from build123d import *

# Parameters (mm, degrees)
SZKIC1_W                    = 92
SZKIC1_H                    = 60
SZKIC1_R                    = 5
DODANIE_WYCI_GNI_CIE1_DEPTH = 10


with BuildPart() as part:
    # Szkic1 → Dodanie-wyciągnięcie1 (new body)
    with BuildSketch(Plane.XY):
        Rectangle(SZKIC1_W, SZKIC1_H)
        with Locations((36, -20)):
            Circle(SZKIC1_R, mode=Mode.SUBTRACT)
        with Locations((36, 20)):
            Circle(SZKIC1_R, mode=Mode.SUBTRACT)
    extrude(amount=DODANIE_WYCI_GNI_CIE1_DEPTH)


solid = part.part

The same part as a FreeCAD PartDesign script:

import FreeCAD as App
import Part
import Sketcher
from FreeCAD import Vector

doc = App.newDocument("Part")
params = doc.addObject("Spreadsheet::Sheet", "Params")
for row, (alias, value) in enumerate([
    ("sketch1_diameter", "10 mm"),
    ("sketch1_width", "92 mm"),
    ("sketch1_height", "60 mm"),
    ("pad1_length", "10 mm"),
], start=1):
    params.set(f"A{row}", alias)
    params.set(f"B{row}", "=" + value)
    params.setAlias(f"B{row}", alias)

body = doc.addObject("PartDesign::Body", "Body")

# Sketch on XY plane
sketch1 = body.newObject("Sketcher::SketchObject", "Sketch")
sketch1.AttachmentSupport = (doc.getObject("XY_Plane"), [""])
sketch1.MapMode = "FlatFace"
sketch1.addGeometry(Part.LineSegment(Vector(-46, 30, 0), Vector(-46, -30, 0)), False)
sketch1.addGeometry(Part.LineSegment(Vector(-46, -30, 0), Vector(46, -30, 0)), False)
sketch1.addGeometry(Part.LineSegment(Vector(46, -30, 0), Vector(46, 30, 0)), False)
sketch1.addGeometry(Part.LineSegment(Vector(46, 30, 0), Vector(-46, 30, 0)), False)
sketch1.addGeometry(Part.Circle(Vector(36, -20, 0), Vector(0, 0, 1), 5), False)
sketch1.addGeometry(Part.Circle(Vector(36, 20, 0), Vector(0, 0, 1), 5), False)
sketch1.addConstraint(Sketcher.Constraint("Coincident", 0, 2, 1, 1))
sketch1.addConstraint(Sketcher.Constraint("Coincident", 1, 2, 2, 1))
sketch1.addConstraint(Sketcher.Constraint("Coincident", 2, 2, 3, 1))
sketch1.addConstraint(Sketcher.Constraint("Coincident", 3, 2, 0, 1))
sketch1.addConstraint(Sketcher.Constraint("Vertical", 0))
sketch1.addConstraint(Sketcher.Constraint("Horizontal", 1))
sketch1.addConstraint(Sketcher.Constraint("Vertical", 2))
sketch1.addConstraint(Sketcher.Constraint("Horizontal", 3))
sketch1.addConstraint(Sketcher.Constraint("Equal", 4, 5))
sketch1.addConstraint(Sketcher.Constraint("Symmetric", 0, 2, 2, 2, -1, 1))
sketch1.addConstraint(Sketcher.Constraint("Symmetric", 4, 3, 5, 3, -1))
sketch1.addConstraint(Sketcher.Constraint("Diameter", 4, 10.0))
sketch1.addConstraint(Sketcher.Constraint("DistanceX", 1, 1, 1, 2, 92.0))
sketch1.addConstraint(Sketcher.Constraint("DistanceY", 0, 2, 0, 1, 60.0))
sketch1.addConstraint(Sketcher.Constraint("DistanceX", -1, 1, 4, 3, 36.0))
sketch1.addConstraint(Sketcher.Constraint("DistanceY", 4, 3, -1, 1, 20.0))
sketch1.setExpression("Constraints[11]", "Params.sketch1_diameter")
sketch1.setExpression("Constraints[12]", "Params.sketch1_width")
sketch1.setExpression("Constraints[13]", "Params.sketch1_height")
pad1 = body.newObject("PartDesign::Pad", "Pad")
pad1.Profile = sketch1
pad1.setExpression("Length", "Params.pad1_length")

doc.recompute()
